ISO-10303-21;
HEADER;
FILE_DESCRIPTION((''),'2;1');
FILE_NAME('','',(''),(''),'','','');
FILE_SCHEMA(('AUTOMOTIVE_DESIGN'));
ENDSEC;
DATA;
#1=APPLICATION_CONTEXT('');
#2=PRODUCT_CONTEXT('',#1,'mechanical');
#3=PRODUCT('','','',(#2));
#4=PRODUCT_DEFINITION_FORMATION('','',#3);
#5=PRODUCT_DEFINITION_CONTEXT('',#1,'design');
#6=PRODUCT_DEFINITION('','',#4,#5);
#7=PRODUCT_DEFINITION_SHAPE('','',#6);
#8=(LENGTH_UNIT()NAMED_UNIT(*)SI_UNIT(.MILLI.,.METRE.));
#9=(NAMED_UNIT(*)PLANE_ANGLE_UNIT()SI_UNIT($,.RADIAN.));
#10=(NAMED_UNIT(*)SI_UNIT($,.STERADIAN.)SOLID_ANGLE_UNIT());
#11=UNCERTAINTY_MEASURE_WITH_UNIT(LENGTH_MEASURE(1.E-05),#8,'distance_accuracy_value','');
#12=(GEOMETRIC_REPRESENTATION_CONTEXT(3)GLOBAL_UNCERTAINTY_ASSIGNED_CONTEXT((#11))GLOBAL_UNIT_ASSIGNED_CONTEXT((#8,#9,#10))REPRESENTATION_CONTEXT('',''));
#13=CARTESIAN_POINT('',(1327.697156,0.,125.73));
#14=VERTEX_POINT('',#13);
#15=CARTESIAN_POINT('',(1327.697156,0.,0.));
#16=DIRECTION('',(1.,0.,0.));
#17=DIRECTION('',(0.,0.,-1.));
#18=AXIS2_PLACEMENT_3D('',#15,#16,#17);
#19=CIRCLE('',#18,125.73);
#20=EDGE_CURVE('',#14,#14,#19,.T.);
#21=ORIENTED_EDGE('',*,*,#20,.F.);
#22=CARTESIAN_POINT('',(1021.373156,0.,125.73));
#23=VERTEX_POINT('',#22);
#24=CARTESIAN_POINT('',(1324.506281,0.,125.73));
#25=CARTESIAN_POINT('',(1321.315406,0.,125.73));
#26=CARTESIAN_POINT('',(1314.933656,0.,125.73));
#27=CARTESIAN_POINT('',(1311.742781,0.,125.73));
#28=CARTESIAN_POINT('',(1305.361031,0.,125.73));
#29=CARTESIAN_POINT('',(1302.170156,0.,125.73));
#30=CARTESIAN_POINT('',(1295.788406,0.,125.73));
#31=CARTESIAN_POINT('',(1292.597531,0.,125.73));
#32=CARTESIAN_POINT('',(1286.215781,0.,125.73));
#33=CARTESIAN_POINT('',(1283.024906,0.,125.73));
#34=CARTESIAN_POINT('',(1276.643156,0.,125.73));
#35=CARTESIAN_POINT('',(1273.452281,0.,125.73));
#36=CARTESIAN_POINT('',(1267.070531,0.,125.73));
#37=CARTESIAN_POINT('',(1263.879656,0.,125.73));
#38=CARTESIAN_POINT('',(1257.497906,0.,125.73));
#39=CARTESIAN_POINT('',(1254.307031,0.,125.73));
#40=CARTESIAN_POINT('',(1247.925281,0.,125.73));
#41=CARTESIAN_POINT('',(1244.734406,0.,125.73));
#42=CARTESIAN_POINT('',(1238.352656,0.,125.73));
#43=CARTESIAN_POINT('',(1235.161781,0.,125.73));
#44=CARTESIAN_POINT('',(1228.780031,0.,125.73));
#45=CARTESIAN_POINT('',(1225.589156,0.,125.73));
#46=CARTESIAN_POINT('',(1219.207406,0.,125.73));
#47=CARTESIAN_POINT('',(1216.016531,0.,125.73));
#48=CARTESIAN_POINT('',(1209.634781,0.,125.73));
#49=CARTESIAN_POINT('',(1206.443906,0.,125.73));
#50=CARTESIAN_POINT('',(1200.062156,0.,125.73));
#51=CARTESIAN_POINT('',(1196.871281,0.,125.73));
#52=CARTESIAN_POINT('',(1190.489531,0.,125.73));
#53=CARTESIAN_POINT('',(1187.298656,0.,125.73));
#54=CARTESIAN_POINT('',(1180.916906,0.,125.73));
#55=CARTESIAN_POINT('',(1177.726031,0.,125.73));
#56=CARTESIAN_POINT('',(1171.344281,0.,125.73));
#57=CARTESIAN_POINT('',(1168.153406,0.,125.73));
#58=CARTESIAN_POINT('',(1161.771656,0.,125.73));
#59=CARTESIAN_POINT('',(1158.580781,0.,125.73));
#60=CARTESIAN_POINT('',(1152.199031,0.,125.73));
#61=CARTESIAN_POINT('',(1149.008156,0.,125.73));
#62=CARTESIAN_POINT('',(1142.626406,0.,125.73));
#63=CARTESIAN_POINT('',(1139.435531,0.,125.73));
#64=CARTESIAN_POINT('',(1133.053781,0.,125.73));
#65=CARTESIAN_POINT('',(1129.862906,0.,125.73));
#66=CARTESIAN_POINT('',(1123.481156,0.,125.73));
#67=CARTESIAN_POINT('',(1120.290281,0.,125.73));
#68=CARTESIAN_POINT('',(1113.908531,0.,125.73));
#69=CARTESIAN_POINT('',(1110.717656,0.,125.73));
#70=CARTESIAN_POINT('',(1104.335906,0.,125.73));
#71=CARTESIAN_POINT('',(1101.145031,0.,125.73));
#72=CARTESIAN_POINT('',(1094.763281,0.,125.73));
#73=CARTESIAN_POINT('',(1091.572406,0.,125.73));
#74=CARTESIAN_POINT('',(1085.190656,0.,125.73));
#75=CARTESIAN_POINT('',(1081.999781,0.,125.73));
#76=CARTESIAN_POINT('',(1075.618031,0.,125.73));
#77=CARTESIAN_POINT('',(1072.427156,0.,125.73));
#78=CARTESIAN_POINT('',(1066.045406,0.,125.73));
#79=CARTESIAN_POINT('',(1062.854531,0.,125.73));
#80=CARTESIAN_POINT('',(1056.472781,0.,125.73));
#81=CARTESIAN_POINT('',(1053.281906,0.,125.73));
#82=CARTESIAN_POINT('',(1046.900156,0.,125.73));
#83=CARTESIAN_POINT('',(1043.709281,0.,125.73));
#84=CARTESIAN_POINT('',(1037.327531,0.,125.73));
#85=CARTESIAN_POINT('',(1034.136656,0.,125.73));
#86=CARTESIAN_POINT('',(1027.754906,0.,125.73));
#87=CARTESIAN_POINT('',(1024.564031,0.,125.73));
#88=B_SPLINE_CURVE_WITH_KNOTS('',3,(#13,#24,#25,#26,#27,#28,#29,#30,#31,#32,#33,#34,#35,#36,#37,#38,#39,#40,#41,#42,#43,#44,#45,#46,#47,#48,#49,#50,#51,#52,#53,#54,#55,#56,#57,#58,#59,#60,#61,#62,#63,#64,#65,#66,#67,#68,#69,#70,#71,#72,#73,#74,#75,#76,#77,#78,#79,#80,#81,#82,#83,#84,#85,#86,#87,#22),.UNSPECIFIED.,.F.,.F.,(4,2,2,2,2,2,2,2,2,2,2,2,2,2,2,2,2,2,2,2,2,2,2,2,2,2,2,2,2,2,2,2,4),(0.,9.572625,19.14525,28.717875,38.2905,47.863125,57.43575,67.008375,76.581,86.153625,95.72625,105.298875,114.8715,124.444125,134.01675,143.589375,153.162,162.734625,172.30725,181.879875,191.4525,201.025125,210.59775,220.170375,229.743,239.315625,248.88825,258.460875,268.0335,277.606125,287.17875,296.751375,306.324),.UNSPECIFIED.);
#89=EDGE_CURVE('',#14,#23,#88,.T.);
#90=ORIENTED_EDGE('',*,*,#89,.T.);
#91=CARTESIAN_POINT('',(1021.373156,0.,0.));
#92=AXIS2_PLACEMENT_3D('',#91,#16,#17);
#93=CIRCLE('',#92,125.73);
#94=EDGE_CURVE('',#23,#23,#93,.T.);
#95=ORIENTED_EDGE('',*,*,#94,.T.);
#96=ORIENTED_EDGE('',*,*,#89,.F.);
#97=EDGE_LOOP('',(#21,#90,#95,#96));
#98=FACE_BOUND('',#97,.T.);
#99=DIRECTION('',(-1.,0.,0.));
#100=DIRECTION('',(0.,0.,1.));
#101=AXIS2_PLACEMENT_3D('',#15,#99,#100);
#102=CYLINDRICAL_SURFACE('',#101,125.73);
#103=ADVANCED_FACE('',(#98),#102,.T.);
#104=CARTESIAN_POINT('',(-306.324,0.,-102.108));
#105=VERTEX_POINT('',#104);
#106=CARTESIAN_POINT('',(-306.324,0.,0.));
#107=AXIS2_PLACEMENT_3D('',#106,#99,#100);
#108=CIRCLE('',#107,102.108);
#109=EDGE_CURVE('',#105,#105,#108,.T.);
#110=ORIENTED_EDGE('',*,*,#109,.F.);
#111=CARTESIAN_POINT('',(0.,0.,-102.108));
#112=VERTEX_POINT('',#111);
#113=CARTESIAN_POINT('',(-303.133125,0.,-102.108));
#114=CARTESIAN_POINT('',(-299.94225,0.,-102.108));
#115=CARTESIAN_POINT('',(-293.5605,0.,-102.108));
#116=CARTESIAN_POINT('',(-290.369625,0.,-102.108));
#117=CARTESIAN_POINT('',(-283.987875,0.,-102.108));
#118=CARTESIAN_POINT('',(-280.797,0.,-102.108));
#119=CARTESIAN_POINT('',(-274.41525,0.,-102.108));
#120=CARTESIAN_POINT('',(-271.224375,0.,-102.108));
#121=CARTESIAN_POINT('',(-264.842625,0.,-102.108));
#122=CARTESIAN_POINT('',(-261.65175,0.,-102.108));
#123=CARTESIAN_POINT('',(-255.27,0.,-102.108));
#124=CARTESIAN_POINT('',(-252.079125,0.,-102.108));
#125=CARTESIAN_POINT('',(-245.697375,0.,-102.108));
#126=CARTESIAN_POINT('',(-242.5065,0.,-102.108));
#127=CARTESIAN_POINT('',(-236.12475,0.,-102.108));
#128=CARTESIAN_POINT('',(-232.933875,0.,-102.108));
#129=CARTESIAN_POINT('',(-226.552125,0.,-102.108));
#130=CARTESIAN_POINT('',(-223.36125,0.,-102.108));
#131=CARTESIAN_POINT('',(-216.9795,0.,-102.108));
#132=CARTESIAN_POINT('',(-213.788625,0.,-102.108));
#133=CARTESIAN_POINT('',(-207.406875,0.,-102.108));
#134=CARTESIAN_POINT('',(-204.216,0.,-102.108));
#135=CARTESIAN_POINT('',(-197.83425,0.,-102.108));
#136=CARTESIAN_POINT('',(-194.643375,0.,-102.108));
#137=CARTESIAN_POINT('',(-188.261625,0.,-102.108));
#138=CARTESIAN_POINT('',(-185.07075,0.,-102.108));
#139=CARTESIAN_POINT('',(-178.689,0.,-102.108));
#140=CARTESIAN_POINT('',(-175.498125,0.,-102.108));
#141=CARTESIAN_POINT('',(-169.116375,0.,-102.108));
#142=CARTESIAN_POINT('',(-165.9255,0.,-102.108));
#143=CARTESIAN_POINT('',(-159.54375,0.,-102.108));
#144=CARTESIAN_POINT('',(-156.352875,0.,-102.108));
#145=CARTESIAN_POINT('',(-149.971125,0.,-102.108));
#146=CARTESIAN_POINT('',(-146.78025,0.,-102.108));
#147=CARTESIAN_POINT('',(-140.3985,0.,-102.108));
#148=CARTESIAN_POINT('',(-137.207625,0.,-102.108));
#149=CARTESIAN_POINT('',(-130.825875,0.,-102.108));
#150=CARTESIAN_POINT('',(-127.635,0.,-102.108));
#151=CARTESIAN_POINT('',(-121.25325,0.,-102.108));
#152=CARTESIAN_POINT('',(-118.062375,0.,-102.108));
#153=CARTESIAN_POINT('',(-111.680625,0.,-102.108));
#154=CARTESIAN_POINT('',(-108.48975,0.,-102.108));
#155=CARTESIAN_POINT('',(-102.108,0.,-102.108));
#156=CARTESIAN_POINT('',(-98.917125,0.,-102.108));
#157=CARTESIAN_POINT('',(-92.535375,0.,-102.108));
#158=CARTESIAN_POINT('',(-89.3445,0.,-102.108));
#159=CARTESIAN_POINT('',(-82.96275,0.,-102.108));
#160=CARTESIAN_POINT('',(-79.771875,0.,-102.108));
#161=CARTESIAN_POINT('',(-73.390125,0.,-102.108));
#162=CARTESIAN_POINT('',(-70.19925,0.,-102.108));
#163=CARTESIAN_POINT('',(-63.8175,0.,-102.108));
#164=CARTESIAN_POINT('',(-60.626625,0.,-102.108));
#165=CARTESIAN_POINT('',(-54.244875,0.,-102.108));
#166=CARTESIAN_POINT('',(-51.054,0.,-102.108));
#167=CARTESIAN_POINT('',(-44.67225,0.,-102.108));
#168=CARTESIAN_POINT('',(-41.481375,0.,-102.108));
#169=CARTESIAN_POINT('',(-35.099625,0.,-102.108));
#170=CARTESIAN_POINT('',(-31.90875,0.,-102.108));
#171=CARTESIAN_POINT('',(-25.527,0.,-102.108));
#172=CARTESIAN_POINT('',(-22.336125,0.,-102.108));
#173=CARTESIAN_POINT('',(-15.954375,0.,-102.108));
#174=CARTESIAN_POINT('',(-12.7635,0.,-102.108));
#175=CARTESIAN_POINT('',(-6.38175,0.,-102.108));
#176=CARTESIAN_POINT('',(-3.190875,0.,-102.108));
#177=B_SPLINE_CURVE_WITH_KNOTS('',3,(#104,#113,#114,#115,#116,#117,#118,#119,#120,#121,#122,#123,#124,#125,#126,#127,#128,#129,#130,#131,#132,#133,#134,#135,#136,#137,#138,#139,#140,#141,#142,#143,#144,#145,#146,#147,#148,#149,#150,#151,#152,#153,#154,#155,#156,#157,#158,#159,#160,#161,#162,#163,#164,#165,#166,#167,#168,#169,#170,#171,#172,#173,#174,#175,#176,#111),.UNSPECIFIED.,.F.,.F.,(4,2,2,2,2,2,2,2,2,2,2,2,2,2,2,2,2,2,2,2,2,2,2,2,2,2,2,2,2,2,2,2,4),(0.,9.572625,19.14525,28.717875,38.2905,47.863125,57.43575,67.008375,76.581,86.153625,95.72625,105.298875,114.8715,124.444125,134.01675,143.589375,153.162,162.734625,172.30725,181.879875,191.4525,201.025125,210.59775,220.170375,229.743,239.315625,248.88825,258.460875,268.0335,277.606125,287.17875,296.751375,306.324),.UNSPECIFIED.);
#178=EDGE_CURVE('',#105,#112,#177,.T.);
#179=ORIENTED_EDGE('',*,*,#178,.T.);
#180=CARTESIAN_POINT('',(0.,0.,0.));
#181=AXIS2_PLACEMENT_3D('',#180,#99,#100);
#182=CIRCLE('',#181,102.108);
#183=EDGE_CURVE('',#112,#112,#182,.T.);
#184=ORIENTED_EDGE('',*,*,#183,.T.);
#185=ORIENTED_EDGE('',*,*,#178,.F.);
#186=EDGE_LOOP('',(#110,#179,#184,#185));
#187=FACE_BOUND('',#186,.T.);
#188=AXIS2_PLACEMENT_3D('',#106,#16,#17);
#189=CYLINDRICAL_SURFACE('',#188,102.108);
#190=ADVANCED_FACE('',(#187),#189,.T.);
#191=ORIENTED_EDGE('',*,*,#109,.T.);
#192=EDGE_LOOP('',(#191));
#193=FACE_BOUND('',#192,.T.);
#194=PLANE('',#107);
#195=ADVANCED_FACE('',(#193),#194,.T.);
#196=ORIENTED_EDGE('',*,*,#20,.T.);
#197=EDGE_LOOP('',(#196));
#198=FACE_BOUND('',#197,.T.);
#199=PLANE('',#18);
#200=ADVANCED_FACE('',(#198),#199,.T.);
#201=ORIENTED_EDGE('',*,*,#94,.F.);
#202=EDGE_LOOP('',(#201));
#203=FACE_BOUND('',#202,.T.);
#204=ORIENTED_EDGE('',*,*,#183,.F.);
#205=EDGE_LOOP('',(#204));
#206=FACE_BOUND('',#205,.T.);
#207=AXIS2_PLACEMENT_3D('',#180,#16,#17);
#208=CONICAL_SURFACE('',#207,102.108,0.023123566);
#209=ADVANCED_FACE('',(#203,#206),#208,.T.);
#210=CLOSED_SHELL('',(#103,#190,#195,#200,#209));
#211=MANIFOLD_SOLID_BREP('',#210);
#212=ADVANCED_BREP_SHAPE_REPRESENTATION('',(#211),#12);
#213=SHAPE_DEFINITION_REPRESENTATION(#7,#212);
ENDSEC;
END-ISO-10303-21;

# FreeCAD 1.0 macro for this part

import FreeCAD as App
import Part
import Sketcher
from FreeCAD import Vector
Q = App.Units.Quantity

doc = App.newDocument("Part")
body = doc.addObject("PartDesign::Body", "Body")

sketch1 = body.newObject("Sketcher::SketchObject", "Sketch")
sketch1.AttachmentSupport = (doc.getObject("YZ_Plane"), [""])
sketch1.MapMode = "FlatFace"
sketch1.addGeometry(Part.Circle(Vector(0, 0, 0), Vector(0, 0, 1), 102.108), False)
sketch1.addConstraint([
    Sketcher.Constraint("Coincident", 0, 3, -1, 1),
    Sketcher.Constraint("Diameter", 0, Q("8.04 in")),
])

sketch2 = body.newObject("Sketcher::SketchObject", "Sketch001")
sketch2.AttachmentSupport = (doc.getObject("YZ_Plane"), [""])
sketch2.MapMode = "FlatFace"
sketch2.AttachmentOffset = App.Placement(Vector(0, 0, 1021.373156), App.Rotation())
sketch2.addGeometry(Part.Circle(Vector(0, 0, 0), Vector(0, 0, 1), 125.73), False)
sketch2.addConstraint([
    Sketcher.Constraint("Coincident", 0, 3, -1, 1),
    Sketcher.Constraint("Diameter", 0, Q("9.9 in")),
])

additiveloft = body.newObject("PartDesign::AdditiveLoft", "AdditiveLoft")
additiveloft.Profile = sketch1
additiveloft.Sections = [sketch2]

sketch3 = body.newObject("Sketcher::SketchObject", "Sketch002")
sketch3.AttachmentSupport = (doc.getObject("YZ_Plane"), [""])
sketch3.MapMode = "FlatFace"
sketch3.addGeometry(Part.Circle(Vector(0, 0, 0), Vector(0, 0, 1), 102.108), False)
sketch3.addConstraint([
    Sketcher.Constraint("Coincident", 0, 3, -1, 1),
    Sketcher.Constraint("Diameter", 0, Q("8.04 in")),
])
pad1 = body.newObject("PartDesign::Pad", "Pad")
pad1.Profile = sketch3
pad1.Length = Q("12.06 in")
pad1.Reversed = True

sketch4 = body.newObject("Sketcher::SketchObject", "Sketch003")
sketch4.AttachmentSupport = (doc.getObject("YZ_Plane"), [""])
sketch4.MapMode = "FlatFace"
sketch4.AttachmentOffset = App.Placement(Vector(0, 0, 1021.373156), App.Rotation())
sketch4.addGeometry(Part.Circle(Vector(0, 0, 0), Vector(0, 0, 1), 125.73), False)
sketch4.addConstraint([
    Sketcher.Constraint("Coincident", 0, 3, -1, 1),
    Sketcher.Constraint("Diameter", 0, Q("9.9 in")),
])
pad2 = body.newObject("PartDesign::Pad", "Pad001")
pad2.Profile = sketch4
pad2.Length = Q("12.06 in")

doc.recompute()
